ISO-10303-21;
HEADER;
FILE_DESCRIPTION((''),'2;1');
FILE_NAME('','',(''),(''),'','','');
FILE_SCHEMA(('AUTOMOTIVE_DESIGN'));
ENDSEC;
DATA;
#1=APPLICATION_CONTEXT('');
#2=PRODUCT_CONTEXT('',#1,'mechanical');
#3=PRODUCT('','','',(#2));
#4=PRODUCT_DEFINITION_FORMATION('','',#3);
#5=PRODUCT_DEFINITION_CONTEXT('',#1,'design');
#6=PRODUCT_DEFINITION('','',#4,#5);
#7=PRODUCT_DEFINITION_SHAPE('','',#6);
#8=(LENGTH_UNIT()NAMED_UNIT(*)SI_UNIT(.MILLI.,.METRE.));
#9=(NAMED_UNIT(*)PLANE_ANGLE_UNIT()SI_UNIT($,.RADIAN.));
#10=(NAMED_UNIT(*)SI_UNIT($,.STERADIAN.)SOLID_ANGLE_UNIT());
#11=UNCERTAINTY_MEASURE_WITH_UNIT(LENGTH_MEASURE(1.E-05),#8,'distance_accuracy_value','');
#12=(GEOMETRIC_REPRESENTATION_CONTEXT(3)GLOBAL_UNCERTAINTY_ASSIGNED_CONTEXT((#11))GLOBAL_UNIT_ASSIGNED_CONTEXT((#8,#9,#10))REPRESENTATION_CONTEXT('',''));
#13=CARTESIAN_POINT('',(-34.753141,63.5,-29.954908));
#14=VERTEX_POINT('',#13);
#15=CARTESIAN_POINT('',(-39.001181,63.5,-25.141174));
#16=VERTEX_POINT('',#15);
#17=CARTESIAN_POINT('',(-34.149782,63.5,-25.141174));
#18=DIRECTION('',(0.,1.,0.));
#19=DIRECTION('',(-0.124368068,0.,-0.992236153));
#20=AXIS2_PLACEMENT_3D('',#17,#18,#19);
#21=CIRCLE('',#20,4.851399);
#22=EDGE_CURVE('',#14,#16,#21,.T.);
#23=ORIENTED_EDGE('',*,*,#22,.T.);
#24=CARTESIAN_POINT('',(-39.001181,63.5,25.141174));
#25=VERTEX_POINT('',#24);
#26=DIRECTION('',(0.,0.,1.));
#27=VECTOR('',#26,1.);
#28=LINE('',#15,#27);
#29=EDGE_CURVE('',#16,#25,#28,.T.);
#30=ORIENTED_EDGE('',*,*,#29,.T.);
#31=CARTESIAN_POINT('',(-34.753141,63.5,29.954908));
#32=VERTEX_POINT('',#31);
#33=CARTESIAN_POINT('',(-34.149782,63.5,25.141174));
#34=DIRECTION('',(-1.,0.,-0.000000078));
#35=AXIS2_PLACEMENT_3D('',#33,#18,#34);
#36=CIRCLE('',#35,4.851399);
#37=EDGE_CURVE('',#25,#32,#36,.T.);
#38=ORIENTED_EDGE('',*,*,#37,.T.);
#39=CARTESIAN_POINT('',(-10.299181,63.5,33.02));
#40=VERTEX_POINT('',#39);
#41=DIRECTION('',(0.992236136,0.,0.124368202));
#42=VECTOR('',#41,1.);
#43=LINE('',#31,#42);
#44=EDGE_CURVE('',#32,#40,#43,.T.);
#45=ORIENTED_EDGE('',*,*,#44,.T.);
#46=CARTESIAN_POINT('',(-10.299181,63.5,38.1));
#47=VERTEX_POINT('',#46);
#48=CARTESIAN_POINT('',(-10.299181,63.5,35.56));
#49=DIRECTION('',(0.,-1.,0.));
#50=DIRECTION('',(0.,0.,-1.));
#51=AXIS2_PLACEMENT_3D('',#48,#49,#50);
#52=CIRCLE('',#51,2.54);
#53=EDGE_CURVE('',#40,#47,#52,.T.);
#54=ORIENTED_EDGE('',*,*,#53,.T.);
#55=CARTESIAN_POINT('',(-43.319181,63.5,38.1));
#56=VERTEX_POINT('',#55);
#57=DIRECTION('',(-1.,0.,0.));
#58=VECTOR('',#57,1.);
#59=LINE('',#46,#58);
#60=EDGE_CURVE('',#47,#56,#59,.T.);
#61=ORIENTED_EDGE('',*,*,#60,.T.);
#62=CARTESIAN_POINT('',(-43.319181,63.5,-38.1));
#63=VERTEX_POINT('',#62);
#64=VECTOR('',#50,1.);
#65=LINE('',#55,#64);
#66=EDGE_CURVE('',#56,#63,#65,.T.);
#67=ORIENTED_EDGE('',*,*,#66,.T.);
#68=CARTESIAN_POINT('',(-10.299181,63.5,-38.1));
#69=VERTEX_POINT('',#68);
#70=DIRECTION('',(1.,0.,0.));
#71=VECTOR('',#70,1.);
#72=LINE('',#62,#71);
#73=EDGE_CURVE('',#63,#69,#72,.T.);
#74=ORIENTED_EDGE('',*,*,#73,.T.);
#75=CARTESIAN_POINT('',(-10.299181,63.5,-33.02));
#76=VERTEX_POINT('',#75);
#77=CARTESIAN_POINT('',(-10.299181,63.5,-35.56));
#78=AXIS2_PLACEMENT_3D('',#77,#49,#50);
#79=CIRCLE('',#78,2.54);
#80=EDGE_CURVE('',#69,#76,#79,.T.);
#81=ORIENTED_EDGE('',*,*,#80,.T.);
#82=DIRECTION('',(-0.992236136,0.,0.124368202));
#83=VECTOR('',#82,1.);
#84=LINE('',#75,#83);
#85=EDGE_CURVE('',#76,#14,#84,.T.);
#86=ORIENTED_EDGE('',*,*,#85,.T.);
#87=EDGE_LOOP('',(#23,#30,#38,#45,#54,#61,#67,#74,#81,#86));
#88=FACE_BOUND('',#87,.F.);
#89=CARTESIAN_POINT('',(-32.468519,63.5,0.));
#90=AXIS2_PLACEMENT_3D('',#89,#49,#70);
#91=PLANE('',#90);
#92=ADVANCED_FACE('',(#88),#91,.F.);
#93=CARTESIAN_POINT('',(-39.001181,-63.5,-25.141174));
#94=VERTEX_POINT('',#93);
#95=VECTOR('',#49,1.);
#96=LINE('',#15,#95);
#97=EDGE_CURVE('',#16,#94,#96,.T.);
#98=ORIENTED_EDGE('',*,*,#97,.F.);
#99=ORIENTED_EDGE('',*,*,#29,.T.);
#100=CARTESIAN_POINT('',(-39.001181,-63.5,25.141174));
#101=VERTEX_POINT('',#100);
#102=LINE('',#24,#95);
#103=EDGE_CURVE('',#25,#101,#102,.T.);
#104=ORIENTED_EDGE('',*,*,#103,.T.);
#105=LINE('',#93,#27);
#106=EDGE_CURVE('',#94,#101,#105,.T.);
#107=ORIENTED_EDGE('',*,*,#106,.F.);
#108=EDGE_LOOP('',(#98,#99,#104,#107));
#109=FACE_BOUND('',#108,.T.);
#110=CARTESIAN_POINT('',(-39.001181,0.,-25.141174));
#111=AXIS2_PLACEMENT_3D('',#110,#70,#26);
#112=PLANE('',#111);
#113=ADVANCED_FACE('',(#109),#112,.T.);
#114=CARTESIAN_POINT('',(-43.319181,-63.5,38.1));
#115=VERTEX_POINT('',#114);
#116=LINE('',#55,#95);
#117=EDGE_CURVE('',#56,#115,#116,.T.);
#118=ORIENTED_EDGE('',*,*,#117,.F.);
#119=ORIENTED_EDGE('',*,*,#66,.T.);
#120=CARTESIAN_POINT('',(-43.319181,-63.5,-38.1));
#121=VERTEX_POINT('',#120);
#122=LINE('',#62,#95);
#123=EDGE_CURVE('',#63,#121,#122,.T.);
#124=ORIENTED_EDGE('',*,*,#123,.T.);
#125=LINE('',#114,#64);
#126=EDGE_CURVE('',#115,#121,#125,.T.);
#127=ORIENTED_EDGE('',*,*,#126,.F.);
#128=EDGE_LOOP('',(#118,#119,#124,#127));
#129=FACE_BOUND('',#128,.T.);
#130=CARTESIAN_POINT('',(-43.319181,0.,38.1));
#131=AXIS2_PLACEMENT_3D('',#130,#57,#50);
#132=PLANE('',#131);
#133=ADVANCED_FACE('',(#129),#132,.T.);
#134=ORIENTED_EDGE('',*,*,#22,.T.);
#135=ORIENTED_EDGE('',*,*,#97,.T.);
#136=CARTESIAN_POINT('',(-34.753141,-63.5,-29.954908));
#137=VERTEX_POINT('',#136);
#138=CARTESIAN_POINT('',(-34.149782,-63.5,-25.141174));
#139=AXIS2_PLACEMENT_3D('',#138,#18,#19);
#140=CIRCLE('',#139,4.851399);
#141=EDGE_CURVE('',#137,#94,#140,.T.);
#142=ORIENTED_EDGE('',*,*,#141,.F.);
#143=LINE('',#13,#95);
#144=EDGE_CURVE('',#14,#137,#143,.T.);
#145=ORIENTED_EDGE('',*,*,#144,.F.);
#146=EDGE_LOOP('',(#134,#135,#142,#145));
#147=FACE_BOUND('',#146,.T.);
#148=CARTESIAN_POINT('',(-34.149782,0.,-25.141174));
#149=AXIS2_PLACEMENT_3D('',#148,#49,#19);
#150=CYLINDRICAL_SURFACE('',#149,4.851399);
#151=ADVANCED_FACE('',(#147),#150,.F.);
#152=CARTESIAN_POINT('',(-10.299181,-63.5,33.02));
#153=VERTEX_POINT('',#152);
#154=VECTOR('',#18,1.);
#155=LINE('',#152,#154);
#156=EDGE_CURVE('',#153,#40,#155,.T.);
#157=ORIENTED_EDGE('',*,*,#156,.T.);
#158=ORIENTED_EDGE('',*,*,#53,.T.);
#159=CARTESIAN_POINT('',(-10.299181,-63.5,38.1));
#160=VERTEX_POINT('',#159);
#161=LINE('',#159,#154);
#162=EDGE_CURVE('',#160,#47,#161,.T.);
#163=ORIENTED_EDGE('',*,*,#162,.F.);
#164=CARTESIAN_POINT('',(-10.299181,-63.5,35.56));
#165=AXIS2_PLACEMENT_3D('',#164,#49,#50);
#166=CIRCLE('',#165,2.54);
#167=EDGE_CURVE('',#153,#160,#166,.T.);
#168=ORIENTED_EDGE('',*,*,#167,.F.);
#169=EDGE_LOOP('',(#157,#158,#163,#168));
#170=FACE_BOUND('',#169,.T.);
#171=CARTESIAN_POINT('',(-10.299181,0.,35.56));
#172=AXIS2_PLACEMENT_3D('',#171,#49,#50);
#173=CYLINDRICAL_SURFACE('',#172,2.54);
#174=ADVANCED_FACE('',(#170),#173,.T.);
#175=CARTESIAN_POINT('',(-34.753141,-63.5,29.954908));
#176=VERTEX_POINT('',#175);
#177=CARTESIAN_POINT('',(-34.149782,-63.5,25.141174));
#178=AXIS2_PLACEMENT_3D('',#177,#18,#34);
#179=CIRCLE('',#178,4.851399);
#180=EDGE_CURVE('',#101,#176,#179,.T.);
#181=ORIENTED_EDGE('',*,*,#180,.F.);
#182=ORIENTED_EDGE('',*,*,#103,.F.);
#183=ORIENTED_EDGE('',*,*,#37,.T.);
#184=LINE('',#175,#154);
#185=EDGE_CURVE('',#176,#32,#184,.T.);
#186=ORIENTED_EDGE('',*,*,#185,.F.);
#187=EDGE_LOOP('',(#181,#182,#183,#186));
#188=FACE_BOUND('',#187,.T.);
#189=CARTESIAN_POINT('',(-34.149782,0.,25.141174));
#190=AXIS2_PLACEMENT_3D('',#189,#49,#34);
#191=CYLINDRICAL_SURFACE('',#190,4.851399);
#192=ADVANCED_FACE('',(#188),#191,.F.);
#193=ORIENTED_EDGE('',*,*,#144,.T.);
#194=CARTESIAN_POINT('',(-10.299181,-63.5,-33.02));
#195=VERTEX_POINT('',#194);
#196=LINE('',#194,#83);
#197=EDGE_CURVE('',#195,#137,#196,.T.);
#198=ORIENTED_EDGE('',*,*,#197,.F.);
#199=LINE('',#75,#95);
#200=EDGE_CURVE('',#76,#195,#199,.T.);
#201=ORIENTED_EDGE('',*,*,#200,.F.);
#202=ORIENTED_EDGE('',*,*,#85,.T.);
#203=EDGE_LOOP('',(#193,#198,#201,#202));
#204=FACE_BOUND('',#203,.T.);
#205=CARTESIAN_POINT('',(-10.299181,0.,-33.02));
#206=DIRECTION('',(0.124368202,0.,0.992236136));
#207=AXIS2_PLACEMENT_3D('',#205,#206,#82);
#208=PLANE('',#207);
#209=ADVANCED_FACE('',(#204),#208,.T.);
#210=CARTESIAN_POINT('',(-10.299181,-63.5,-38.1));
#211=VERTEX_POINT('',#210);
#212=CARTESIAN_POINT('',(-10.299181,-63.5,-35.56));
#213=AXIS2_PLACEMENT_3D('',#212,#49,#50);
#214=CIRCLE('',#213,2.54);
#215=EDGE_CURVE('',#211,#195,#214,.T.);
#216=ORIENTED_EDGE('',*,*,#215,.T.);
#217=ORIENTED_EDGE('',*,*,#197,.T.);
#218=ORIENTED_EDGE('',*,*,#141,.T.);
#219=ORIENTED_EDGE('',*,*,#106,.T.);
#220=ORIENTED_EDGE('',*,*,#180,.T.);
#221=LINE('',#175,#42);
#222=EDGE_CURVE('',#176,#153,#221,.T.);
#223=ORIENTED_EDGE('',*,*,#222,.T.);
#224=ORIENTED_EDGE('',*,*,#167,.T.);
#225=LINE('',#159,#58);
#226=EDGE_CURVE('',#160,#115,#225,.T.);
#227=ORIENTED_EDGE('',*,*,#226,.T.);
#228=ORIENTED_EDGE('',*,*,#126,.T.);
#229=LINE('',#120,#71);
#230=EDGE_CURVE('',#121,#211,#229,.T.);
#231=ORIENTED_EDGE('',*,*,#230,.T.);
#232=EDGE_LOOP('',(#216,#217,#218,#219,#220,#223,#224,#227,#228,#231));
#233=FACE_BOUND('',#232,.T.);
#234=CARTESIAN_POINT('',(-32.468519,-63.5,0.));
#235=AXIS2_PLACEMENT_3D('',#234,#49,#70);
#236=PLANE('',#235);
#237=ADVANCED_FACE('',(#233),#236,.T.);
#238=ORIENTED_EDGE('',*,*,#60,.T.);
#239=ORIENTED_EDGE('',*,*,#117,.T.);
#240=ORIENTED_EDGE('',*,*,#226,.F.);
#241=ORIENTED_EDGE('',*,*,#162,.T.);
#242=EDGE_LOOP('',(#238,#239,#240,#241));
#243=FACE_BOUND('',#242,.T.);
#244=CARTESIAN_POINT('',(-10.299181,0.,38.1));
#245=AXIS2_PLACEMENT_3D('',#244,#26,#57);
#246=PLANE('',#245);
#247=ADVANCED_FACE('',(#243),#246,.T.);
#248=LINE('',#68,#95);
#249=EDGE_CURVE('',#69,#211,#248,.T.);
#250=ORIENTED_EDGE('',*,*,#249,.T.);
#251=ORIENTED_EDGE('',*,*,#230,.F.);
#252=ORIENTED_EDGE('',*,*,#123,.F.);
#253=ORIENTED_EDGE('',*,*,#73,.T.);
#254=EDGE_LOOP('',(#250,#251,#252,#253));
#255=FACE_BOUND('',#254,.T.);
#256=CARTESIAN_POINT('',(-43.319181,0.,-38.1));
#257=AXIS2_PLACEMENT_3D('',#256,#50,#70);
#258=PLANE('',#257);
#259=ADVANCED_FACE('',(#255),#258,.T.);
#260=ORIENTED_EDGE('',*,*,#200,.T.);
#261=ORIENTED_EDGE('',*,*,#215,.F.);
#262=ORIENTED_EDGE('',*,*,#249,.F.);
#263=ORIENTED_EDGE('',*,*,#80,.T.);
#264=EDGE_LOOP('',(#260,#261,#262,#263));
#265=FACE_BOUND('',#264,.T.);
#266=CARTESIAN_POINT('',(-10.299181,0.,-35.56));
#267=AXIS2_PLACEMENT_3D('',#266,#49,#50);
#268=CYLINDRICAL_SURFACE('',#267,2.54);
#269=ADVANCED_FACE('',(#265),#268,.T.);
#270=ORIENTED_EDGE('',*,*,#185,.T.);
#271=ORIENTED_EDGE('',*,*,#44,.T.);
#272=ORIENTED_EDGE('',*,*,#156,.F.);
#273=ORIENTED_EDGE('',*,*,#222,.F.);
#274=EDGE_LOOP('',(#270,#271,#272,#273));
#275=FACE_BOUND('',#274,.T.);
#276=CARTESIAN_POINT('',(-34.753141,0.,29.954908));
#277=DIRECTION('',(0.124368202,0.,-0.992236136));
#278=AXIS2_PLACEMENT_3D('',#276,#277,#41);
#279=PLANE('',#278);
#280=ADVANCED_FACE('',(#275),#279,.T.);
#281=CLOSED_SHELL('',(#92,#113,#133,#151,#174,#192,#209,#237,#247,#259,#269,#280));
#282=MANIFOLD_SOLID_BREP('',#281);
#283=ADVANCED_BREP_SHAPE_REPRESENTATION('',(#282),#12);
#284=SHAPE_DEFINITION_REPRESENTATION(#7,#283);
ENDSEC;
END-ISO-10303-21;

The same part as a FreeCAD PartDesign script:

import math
import FreeCAD as App
import Part
import Sketcher

V = App.Vector
Q = App.Units.Quantity

doc = App.newDocument("Part")
body = doc.addObject("PartDesign::Body", "Body")

# Sketch on XZ plane
sketch1 = body.newObject("Sketcher::SketchObject", "Sketch")
sketch1.AttachmentSupport = (doc.getObject("XZ_Plane"), [""])
sketch1.MapMode = "FlatFace"
sketch1.addGeometry(Part.LineSegment(V(-10.299181, 38.1, 0), V(-43.319181, 38.1, 0)), False)
sketch1.addGeometry(Part.LineSegment(V(-43.319181, 38.1, 0), V(-43.319181, -38.1, 0)), False)
sketch1.addGeometry(Part.LineSegment(V(-43.319181, -38.1, 0), V(-10.299181, -38.1, 0)), False)
sketch1.addGeometry(Part.ArcOfCircle(Part.Circle(V(-10.299181, -35.56, 0), V(0, 0, 1), 2.54), math.radians(-90), math.radians(90)), False)
sketch1.addGeometry(Part.LineSegment(V(-10.299181, -33.02, 0), V(-34.753141, -29.954908, 0)), False)
sketch1.addGeometry(Part.ArcOfCircle(Part.Circle(V(-34.149782, -25.141174, 0), V(0, 0, 1), 4.851399), math.radians(179.999996), math.radians(262.855736)), False)
sketch1.addGeometry(Part.LineSegment(V(-39.001181, -25.141174, 0), V(-39.001181, 25.141174, 0)), False)
sketch1.addGeometry(Part.ArcOfCircle(Part.Circle(V(-34.149782, 25.141174, 0), V(0, 0, 1), 4.851399), math.radians(97.144264), math.radians(180.000004)), False)
sketch1.addGeometry(Part.LineSegment(V(-34.753141, 29.954908, 0), V(-10.299181, 33.02, 0)), False)
sketch1.addGeometry(Part.ArcOfCircle(Part.Circle(V(-10.299181, 35.56, 0), V(0, 0, 1), 2.54), math.radians(-90), math.radians(90)), False)
sketch1.addConstraint(Sketcher.Constraint("Coincident", 0, 2, 1, 1))
sketch1.addConstraint(Sketcher.Constraint("Coincident", 1, 2, 2, 1))
sketch1.addConstraint(Sketcher.Constraint("Tangent", 2, 2, 3, 1))
sketch1.addConstraint(Sketcher.Constraint("Coincident", 3, 2, 4, 1))
sketch1.addConstraint(Sketcher.Constraint("Tangent", 4, 2, 5, 2))
sketch1.addConstraint(Sketcher.Constraint("Tangent", 5, 1, 6, 1))
sketch1.addConstraint(Sketcher.Constraint("Tangent", 6, 2, 7, 2))
sketch1.addConstraint(Sketcher.Constraint("Tangent", 7, 1, 8, 1))
sketch1.addConstraint(Sketcher.Constraint("Coincident", 8, 2, 9, 1))
sketch1.addConstraint(Sketcher.Constraint("Tangent", 9, 2, 0, 1))
sketch1.addConstraint(Sketcher.Constraint("Horizontal", 0))
sketch1.addConstraint(Sketcher.Constraint("Vertical", 1))
sketch1.addConstraint(Sketcher.Constraint("Horizontal", 2))
sketch1.addConstraint(Sketcher.Constraint("Vertical", 6))
sketch1.addConstraint(Sketcher.Constraint("Equal", 5, 7))
sketch1.addConstraint(Sketcher.Constraint("Equal", 3, 9))
sketch1.addConstraint(Sketcher.Constraint("Symmetric", 3, 3, 9, 3, -1))
sketch1.addConstraint(Sketcher.Constraint("Symmetric", 4, 2, 7, 1, -1))
sketch1.addConstraint(Sketcher.Constraint("Vertical", 2, 2, 3, 2))
sketch1.addConstraint(Sketcher.Constraint("Radius", 3, Q("0.1 in")))
sketch1.addConstraint(Sketcher.Constraint("DistanceY", 1, 2, 1, 1, Q("3 in")))
sketch1.addConstraint(Sketcher.Constraint("DistanceX", 0, 2, 0, 1, Q("1.3 in")))
sketch1.addConstraint(Sketcher.Constraint("Radius", 5, Q("0.191 in")))
sketch1.addConstraint(Sketcher.Constraint("DistanceX", 1, 2, 5, 1, Q("0.17 in")))
sketch1.addConstraint(Sketcher.Constraint("DistanceY", 6, 1, 6, 2, 50.282348))
sketch1.addConstraint(Sketcher.Constraint("DistanceX", 3, 3, -1, 1, 10.299181))
pad1 = body.newObject("PartDesign::Pad", "Pad")
pad1.Profile = sketch1
pad1.Length = Q("5 in")
pad1.Midplane = True

doc.recompute()
